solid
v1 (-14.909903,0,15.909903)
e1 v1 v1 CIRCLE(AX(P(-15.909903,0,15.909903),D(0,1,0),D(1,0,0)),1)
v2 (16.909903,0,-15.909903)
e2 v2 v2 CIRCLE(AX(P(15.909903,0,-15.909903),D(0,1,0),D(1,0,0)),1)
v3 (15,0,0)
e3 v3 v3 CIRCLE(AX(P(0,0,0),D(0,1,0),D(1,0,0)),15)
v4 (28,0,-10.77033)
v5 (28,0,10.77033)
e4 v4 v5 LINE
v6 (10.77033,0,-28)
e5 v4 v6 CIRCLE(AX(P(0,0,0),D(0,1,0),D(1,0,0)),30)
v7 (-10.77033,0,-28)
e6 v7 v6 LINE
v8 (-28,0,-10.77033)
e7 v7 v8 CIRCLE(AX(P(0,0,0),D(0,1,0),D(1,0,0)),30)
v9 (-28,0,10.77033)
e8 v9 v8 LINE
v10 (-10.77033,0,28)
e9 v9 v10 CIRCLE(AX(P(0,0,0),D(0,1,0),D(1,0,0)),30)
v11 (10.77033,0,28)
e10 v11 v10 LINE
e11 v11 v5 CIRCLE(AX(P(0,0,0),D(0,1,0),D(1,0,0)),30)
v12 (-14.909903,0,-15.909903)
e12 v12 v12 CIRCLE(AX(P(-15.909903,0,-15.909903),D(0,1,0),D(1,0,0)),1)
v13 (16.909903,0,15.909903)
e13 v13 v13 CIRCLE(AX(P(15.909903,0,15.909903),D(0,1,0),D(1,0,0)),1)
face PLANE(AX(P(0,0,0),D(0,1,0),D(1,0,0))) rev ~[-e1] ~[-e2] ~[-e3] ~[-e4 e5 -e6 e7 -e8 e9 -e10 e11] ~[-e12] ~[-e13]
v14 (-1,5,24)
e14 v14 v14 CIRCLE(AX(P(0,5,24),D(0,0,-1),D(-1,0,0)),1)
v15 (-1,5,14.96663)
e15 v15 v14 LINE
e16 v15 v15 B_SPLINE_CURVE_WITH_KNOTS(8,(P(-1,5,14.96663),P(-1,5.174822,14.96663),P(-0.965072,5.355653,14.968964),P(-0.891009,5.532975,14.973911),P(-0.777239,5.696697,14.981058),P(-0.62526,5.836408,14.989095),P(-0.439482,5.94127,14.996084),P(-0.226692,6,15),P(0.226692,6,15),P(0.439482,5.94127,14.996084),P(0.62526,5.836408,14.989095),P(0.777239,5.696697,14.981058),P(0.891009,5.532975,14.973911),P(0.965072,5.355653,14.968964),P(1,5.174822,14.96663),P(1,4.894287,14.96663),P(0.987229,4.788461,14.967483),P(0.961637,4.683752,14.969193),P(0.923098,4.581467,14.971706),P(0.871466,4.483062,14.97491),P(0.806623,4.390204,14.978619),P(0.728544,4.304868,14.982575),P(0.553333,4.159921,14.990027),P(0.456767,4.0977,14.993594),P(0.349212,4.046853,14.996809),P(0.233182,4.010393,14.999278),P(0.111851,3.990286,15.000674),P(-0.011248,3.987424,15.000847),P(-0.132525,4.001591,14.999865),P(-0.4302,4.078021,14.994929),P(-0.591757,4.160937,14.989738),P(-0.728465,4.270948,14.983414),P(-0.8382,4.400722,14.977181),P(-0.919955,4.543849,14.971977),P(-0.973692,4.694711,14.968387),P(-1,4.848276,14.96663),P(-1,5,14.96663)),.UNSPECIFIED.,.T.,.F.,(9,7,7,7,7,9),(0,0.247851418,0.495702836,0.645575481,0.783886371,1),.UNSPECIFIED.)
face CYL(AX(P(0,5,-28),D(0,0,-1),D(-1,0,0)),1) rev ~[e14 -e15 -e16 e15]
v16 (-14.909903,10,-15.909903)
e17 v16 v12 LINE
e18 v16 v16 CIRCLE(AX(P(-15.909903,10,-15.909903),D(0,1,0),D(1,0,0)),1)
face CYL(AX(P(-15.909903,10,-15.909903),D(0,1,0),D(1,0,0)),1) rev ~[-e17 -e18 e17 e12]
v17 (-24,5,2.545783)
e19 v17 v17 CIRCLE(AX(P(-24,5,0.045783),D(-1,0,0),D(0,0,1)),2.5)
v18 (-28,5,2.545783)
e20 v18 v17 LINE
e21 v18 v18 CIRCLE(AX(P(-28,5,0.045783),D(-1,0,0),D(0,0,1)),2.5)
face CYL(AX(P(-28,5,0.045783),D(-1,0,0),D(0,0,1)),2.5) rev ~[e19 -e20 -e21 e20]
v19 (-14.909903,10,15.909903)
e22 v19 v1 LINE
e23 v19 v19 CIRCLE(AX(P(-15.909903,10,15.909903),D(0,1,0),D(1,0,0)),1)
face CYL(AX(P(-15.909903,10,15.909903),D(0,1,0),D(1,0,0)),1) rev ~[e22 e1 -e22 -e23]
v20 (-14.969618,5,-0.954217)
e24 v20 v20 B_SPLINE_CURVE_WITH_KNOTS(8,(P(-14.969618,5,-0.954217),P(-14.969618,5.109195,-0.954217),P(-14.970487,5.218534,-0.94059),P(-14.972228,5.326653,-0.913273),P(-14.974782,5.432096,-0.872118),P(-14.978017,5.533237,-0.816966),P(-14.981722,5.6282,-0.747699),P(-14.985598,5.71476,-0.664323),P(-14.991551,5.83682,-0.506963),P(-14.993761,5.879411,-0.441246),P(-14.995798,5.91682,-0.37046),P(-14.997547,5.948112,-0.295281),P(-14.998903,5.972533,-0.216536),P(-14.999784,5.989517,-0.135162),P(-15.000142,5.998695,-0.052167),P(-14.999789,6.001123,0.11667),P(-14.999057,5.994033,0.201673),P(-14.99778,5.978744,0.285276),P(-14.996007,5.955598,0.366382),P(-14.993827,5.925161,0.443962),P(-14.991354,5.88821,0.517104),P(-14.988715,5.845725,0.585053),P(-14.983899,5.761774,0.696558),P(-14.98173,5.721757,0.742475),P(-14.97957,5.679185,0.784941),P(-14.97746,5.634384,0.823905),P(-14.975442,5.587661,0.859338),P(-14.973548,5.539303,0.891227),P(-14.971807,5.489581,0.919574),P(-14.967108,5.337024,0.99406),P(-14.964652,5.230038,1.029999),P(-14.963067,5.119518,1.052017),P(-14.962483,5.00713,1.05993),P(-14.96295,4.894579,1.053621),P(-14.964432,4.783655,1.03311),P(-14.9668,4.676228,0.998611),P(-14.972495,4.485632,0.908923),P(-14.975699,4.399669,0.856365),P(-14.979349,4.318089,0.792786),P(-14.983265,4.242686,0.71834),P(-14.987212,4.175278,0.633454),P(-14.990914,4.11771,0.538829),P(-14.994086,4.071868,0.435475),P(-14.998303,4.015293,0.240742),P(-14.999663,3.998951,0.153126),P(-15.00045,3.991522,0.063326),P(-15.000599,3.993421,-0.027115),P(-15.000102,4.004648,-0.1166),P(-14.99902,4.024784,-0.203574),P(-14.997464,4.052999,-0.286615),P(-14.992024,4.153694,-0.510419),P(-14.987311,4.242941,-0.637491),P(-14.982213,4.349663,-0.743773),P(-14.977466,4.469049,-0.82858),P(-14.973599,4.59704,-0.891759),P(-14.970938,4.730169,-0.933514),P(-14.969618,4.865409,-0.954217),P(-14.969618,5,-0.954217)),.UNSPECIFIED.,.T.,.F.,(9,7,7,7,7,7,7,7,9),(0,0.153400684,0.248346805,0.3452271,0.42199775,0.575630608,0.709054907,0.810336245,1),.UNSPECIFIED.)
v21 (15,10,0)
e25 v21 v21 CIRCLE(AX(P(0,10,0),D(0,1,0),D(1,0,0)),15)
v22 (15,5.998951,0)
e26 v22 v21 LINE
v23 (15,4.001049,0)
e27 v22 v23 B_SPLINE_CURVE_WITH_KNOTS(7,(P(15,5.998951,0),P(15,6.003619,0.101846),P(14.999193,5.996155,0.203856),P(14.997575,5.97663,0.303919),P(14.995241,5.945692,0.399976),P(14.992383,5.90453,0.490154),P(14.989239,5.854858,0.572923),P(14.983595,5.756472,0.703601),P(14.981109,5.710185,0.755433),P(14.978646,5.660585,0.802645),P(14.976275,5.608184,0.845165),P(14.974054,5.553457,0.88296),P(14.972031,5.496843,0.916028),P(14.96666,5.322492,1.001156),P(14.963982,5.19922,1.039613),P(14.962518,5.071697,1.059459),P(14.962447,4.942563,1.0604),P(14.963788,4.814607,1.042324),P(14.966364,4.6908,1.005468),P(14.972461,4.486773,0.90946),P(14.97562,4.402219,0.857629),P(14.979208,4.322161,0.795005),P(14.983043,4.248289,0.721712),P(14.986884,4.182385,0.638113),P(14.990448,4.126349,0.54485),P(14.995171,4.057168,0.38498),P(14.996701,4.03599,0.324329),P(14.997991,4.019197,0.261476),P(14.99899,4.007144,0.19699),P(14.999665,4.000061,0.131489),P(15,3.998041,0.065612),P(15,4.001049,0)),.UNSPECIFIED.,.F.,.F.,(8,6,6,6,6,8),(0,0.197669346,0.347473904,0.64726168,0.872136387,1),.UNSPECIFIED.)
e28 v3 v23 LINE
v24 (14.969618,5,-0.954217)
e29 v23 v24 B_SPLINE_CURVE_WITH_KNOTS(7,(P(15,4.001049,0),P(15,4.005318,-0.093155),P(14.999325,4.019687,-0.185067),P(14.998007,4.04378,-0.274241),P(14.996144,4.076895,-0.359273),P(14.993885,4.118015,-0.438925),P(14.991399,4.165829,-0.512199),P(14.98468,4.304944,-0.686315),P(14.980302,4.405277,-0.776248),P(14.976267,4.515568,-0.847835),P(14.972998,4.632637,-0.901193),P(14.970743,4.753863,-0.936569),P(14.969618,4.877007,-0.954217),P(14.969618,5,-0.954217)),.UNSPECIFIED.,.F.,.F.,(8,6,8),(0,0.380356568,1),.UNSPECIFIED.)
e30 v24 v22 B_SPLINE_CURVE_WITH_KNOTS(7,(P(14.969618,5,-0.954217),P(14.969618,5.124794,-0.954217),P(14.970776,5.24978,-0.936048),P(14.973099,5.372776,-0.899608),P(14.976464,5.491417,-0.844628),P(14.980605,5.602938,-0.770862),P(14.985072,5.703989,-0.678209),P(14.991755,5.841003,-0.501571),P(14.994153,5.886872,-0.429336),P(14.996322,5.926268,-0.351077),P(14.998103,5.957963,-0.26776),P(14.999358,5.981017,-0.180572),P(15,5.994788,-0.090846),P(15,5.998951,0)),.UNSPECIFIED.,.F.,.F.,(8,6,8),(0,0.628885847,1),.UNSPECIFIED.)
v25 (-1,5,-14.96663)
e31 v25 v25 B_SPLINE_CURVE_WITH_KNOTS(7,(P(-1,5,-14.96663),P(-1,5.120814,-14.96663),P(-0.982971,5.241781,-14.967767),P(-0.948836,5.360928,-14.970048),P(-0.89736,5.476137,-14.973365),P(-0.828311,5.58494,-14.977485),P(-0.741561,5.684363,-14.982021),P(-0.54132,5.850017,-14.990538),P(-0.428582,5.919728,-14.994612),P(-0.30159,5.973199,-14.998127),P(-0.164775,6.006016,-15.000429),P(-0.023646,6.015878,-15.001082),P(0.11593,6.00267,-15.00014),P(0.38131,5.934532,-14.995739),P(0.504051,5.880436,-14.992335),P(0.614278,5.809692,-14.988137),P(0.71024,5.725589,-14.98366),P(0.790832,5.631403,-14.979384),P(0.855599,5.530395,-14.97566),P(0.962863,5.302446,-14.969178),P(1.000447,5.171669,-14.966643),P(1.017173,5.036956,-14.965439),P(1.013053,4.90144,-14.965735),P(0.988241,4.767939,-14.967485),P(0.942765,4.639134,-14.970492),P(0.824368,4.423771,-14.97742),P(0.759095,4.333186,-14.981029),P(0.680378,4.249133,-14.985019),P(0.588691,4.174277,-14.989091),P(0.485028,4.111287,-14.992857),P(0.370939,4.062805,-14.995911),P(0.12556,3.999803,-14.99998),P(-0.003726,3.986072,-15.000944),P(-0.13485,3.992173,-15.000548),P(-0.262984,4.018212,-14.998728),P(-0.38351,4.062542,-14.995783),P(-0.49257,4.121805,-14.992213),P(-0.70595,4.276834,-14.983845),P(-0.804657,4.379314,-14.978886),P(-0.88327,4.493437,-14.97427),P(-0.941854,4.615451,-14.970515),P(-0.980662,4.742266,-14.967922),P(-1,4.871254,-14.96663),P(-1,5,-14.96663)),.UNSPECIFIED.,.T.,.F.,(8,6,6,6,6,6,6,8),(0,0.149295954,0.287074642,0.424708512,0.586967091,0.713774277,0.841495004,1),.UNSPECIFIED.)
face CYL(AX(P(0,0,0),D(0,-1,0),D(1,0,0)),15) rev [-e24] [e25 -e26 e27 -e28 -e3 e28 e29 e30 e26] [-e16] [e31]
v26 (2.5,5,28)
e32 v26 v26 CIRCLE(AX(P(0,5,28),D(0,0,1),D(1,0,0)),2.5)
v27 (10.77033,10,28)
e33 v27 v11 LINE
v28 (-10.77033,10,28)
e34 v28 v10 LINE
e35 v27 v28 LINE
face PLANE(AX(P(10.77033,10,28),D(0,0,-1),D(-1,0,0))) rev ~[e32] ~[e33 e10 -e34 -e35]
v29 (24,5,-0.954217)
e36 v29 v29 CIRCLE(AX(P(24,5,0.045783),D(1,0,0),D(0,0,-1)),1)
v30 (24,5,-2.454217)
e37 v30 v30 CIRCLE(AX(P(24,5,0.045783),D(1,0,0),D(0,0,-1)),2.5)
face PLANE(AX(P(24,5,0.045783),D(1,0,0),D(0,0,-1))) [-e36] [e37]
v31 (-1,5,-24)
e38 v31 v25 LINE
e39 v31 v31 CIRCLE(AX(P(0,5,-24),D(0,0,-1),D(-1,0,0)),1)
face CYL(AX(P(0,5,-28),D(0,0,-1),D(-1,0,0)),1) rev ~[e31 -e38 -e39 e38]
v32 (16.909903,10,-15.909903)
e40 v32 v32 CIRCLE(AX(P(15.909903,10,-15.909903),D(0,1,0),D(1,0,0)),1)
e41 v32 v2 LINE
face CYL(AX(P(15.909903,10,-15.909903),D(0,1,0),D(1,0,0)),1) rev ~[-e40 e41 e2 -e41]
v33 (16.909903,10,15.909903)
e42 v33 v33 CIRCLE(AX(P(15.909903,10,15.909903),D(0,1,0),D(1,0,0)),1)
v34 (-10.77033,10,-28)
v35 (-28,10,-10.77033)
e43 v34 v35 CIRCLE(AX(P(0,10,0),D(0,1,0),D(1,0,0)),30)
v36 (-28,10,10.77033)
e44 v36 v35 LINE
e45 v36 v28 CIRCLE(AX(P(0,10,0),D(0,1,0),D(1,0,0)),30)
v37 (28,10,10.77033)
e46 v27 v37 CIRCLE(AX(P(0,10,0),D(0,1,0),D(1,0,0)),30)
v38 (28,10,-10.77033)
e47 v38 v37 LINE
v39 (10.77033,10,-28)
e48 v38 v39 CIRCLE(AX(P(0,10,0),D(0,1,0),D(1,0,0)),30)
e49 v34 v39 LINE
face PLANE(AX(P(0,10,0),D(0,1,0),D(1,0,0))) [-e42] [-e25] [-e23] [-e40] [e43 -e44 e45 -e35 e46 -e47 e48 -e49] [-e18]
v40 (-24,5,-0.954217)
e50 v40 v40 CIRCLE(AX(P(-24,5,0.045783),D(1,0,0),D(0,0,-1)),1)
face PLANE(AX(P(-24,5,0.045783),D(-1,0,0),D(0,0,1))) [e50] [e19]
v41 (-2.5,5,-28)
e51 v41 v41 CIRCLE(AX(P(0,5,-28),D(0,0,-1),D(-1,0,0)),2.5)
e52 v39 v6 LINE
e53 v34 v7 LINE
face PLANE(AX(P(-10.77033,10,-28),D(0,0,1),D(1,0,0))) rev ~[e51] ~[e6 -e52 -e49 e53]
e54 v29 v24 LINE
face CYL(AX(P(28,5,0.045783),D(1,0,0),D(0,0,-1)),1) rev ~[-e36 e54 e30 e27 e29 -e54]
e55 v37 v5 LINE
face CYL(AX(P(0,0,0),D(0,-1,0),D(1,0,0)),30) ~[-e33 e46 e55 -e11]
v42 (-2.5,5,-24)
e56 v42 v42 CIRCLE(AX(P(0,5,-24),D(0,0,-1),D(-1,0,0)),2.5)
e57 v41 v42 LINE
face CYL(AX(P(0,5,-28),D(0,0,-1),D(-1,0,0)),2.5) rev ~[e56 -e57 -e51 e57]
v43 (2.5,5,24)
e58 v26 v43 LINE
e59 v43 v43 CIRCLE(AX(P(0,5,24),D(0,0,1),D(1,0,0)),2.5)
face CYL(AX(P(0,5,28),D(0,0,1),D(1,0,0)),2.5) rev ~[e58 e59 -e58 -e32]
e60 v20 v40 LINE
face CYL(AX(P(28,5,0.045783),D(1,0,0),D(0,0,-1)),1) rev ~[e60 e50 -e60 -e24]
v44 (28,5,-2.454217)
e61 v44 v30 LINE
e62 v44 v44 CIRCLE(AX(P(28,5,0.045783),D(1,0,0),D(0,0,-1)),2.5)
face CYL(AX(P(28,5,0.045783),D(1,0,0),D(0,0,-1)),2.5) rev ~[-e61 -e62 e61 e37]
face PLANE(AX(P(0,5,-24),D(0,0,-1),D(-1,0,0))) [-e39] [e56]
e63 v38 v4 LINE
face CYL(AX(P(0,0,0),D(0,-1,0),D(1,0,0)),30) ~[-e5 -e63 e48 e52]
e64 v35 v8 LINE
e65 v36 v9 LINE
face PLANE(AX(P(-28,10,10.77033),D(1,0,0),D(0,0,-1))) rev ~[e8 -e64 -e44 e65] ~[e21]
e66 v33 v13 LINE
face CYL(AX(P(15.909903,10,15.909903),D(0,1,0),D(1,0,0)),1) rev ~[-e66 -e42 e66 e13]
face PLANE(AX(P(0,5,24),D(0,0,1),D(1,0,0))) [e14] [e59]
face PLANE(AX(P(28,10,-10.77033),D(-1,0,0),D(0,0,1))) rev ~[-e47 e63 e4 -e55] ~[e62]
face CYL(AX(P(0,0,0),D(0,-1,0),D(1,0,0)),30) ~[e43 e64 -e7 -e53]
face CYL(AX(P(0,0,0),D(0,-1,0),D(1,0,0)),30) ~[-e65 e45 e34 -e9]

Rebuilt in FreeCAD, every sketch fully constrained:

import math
import FreeCAD as App
import Part
import Sketcher

V = App.Vector
Q = App.Units.Quantity

doc = App.newDocument("Part")
params = doc.addObject("Spreadsheet::Sheet", "Params")
for row, (alias, value) in enumerate([
    ("sketch1_diameter", "60 mm"),
    ("sketch1_diameter2", "30 mm"),
    ("pad1_length", "10 mm"),
    ("sketch2_radius", "30 mm"),
    ("pocket1_length", "43 mm"),
    ("sketch3_diameter", "2 mm"),
    ("pocket2_length", "43 mm"),
    ("sketch4_diameter", "2 mm"),
    ("pocket3_length", "70 mm"),
    ("sketch5_diameter", "2 mm"),
    ("pocket4_length", "70 mm"),
    ("sketch6_diameter", "5 mm"),
    ("pocket5_length", "4 mm"),
    ("sketch7_diameter", "5 mm"),
    ("sketch7_diameter2", "2 mm"),
    ("pocket6_length", "4 mm"),
    ("sketch8_diameter", "5 mm"),
    ("pocket7_length", "4 mm"),
    ("sketch9_diameter", "5 mm"),
    ("pocket8_length", "4 mm"),
], start=1):
    params.set(f"A{row}", alias)
    params.set(f"B{row}", "=" + value)
    params.setAlias(f"B{row}", alias)

body = doc.addObject("PartDesign::Body", "Body")

# Sketch on XZ plane
sketch1 = doc.addObject("Sketcher::SketchObject", "Sketch")
body.addObject(sketch1)
sketch1.AttachmentSupport = (doc.XZ_Plane, [""])
sketch1.MapMode = "FlatFace"
sketch1.addGeometry([
    Part.Circle(V(0, 0, 0), V(0, 0, 1), 30),
    Part.Circle(V(0, 0, 0), V(0, 0, 1), 15),
], False)
sketch1.addConstraint([
    Sketcher.Constraint("Coincident", 0, 3, -1, 1),
    Sketcher.Constraint("Coincident", 1, 3, -1, 1),
    Sketcher.Constraint("Diameter", 0, Q("60 mm")),
    Sketcher.Constraint("Diameter", 1, Q("30 mm")),
])
sketch1.setExpression("Constraints[2]", "Params.sketch1_diameter")
sketch1.setExpression("Constraints[3]", "Params.sketch1_diameter2")
pad1 = doc.addObject("PartDesign::Pad", "Pad")
body.addObject(pad1)
pad1.Profile = sketch1
pad1.setExpression("Length", "Params.pad1_length")
pad1.Reversed = True

# Sketch on XZ plane
sketch2 = doc.addObject("Sketcher::SketchObject", "Sketch001")
body.addObject(sketch2)
sketch2.AttachmentSupport = (doc.XZ_Plane, [""])
sketch2.MapMode = "FlatFace"
sketch2.AttachmentOffset = App.Placement(V(0, 0, -10), App.Rotation())
sketch2.addGeometry([
    Part.ArcOfCircle(Part.Circle(V(0, 0, 0), V(0, 0, 1), 30), math.radians(-111.03947), math.radians(-68.96053)),  # 0
    Part.LineSegment(V(-10.77033, -28, 0), V(10.77033, -28, 0)),  # 1
    Part.LineSegment(V(-28, 10.77033, 0), V(-28, -10.77033, 0)),  # 2
    Part.ArcOfCircle(Part.Circle(V(0, 0, 0), V(0, 0, 1), 30), math.radians(158.96053), math.radians(201.03947)),  # 3
    Part.ArcOfCircle(Part.Circle(V(0, 0, 0), V(0, 0, 1), 30), math.radians(-21.03947), math.radians(0)),  # 4
    Part.LineSegment(V(28, -10.77033, 0), V(28, 10.77033, 0)),  # 5
    Part.ArcOfCircle(Part.Circle(V(0, 0, 0), V(0, 0, 1), 30), math.radians(0), math.radians(21.03947)),  # 6
    Part.LineSegment(V(10.77033, 28, 0), V(-10.77033, 28, 0)),  # 7
    Part.ArcOfCircle(Part.Circle(V(0, 0, 0), V(0, 0, 1), 30), math.radians(68.96053), math.radians(111.03947)),  # 8
], False)
sketch2.addConstraint([
    Sketcher.Constraint("Coincident", 0, 1, 1, 1),
    Sketcher.Constraint("Coincident", 1, 2, 0, 2),
    Sketcher.Constraint("Coincident", 2, 1, 3, 1),
    Sketcher.Constraint("Coincident", 3, 2, 2, 2),
    Sketcher.Constraint("Coincident", 4, 1, 5, 1),
    Sketcher.Constraint("Coincident", 5, 2, 6, 2),
    Sketcher.Constraint("Tangent", 6, 1, 4, 2),
    Sketcher.Constraint("Coincident", 7, 1, 8, 1),
    Sketcher.Constraint("Coincident", 8, 2, 7, 2),
    Sketcher.Constraint("Horizontal", 1),
    Sketcher.Constraint("Vertical", 2),
    Sketcher.Constraint("Vertical", 5),
    Sketcher.Constraint("Horizontal", 7),
    Sketcher.Constraint("Coincident", 0, 3, -1, 1),
    Sketcher.Constraint("Coincident", 3, 3, -1, 1),
    Sketcher.Constraint("Coincident", 4, 3, -1, 1),
    Sketcher.Constraint("Coincident", 8, 3, -1, 1),
    Sketcher.Constraint("Equal", 0, 3),
    Sketcher.Constraint("Equal", 3, 4),
    Sketcher.Constraint("Equal", 4, 6),
    Sketcher.Constraint("Equal", 6, 8),
    Sketcher.Constraint("PointOnObject", 6, 1, -1),
    Sketcher.Constraint("Horizontal", 3, 2, 4, 1),
    Sketcher.Constraint("Vertical", 1, 2, 7, 1),
    Sketcher.Constraint("Equal", 7, 2),
    Sketcher.Constraint("Radius", 0, Q("30 mm")),
    Sketcher.Constraint("DistanceY", 0, 1, -1, 1, Q("28 mm")),
])
sketch2.setExpression("Constraints[25]", "Params.sketch2_radius")
pocket1 = doc.addObject("PartDesign::Pocket", "Pocket")
body.addObject(pocket1)
pocket1.Profile = sketch2
pocket1.setExpression("Length", "Params.pocket1_length")
pocket1.Reversed = True

# Sketch on XZ plane
sketch3 = doc.addObject("Sketcher::SketchObject", "Sketch002")
body.addObject(sketch3)
sketch3.AttachmentSupport = (doc.XZ_Plane, [""])
sketch3.MapMode = "FlatFace"
sketch3.AttachmentOffset = App.Placement(V(0, 0, -10), App.Rotation())
sketch3.addGeometry([
    Part.Circle(V(15.909903, 15.909903, 0), V(0, 0, 1), 1),
    Part.Circle(V(-15.909903, 15.909903, 0), V(0, 0, 1), 1),
    Part.Circle(V(-15.909903, -15.909903, 0), V(0, 0, 1), 1),
    Part.Circle(V(15.909903, -15.909903, 0), V(0, 0, 1), 1),
], False)
sketch3.addConstraint([
    Sketcher.Constraint("Equal", 0, 1),
    Sketcher.Constraint("Equal", 1, 2),
    Sketcher.Constraint("Equal", 2, 3),
    Sketcher.Constraint("Symmetric", 0, 3, 2, 3, -1, 1),
    Sketcher.Constraint("Symmetric", 1, 3, 3, 3, -1, 1),
    Sketcher.Constraint("Symmetric", 0, 3, 1, 3, -2),
    Sketcher.Constraint("Diameter", 0, Q("2 mm")),
    Sketcher.Constraint("DistanceX", -1, 1, 0, 3, Q("15.909903 mm")),
    Sketcher.Constraint("DistanceY", -1, 1, 0, 3, Q("15.909903 mm")),
])
sketch3.setExpression("Constraints[6]", "Params.sketch3_diameter")
pocket2 = doc.addObject("PartDesign::Pocket", "Pocket001")
body.addObject(pocket2)
pocket2.Profile = sketch3
pocket2.setExpression("Length", "Params.pocket2_length")
pocket2.Reversed = True

# Sketch on XY plane
sketch4 = doc.addObject("Sketcher::SketchObject", "Sketch003")
body.addObject(sketch4)
sketch4.AttachmentSupport = (doc.XY_Plane, [""])
sketch4.MapMode = "FlatFace"
sketch4.AttachmentOffset = App.Placement(V(0, 0, -28), App.Rotation())
sketch4.addGeometry(Part.Circle(V(0, 5, 0), V(0, 0, 1), 1), False)
sketch4.addConstraint([
    Sketcher.Constraint("PointOnObject", 0, 3, -2),
    Sketcher.Constraint("Diameter", 0, Q("2 mm")),
    Sketcher.Constraint("DistanceY", -1, 1, 0, 3, Q("5 mm")),
])
sketch4.setExpression("Constraints[1]", "Params.sketch4_diameter")
pocket3 = doc.addObject("PartDesign::Pocket", "Pocket002")
body.addObject(pocket3)
pocket3.Profile = sketch4
pocket3.setExpression("Length", "Params.pocket3_length")
pocket3.Reversed = True

# Sketch on YZ plane
sketch5 = doc.addObject("Sketcher::SketchObject", "Sketch004")
body.addObject(sketch5)
sketch5.AttachmentSupport = (doc.YZ_Plane, [""])
sketch5.MapMode = "FlatFace"
sketch5.AttachmentOffset = App.Placement(V(0, 0, 28), App.Rotation())
sketch5.addGeometry(Part.Circle(V(5, 0.045783, 0), V(0, 0, 1), 1), False)
sketch5.addConstraint([
    Sketcher.Constraint("Diameter", 0, Q("2 mm")),
    Sketcher.Constraint("DistanceX", -1, 1, 0, 3, Q("5 mm")),
    Sketcher.Constraint("DistanceY", -1, 1, 0, 3, Q("0.045783 mm")),
])
sketch5.setExpression("Constraints[0]", "Params.sketch5_diameter")
pocket4 = doc.addObject("PartDesign::Pocket", "Pocket003")
body.addObject(pocket4)
pocket4.Profile = sketch5
pocket4.setExpression("Length", "Params.pocket4_length")

# Sketch on XY plane
sketch6 = doc.addObject("Sketcher::SketchObject", "Sketch005")
body.addObject(sketch6)
sketch6.AttachmentSupport = (doc.XY_Plane, [""])
sketch6.MapMode = "FlatFace"
sketch6.AttachmentOffset = App.Placement(V(0, 0, -28), App.Rotation())
sketch6.addGeometry(Part.Circle(V(0, 5, 0), V(0, 0, 1), 2.5), False)
sketch6.addConstraint([
    Sketcher.Constraint("PointOnObject", 0, 3, -2),
    Sketcher.Constraint("Diameter", 0, Q("5 mm")),
    Sketcher.Constraint("DistanceY", -1, 1, 0, 3, Q("5 mm")),
])
sketch6.setExpression("Constraints[1]", "Params.sketch6_diameter")
pocket5 = doc.addObject("PartDesign::Pocket", "Pocket004")
body.addObject(pocket5)
pocket5.Profile = sketch6
pocket5.setExpression("Length", "Params.pocket5_length")
pocket5.Reversed = True

# Sketch on YZ plane
sketch7 = doc.addObject("Sketcher::SketchObject", "Sketch006")
body.addObject(sketch7)
sketch7.AttachmentSupport = (doc.YZ_Plane, [""])
sketch7.MapMode = "FlatFace"
sketch7.AttachmentOffset = App.Placement(V(0, 0, 28), App.Rotation())
sketch7.addGeometry([
    Part.Circle(V(5, 0.045783, 0), V(0, 0, 1), 2.5),
    Part.Circle(V(5, 0.045783, 0), V(0, 0, 1), 1),
], False)
sketch7.addConstraint([
    Sketcher.Constraint("Coincident", 1, 3, 0, 3),
    Sketcher.Constraint("Diameter", 0, Q("5 mm")),
    Sketcher.Constraint("Diameter", 1, Q("2 mm")),
    Sketcher.Constraint("DistanceX", -1, 1, 0, 3, Q("5 mm")),
    Sketcher.Constraint("DistanceY", -1, 1, 0, 3, Q("0.045783 mm")),
])
sketch7.setExpression("Constraints[1]", "Params.sketch7_diameter")
sketch7.setExpression("Constraints[2]", "Params.sketch7_diameter2")
pocket6 = doc.addObject("PartDesign::Pocket", "Pocket005")
body.addObject(pocket6)
pocket6.Profile = sketch7
pocket6.setExpression("Length", "Params.pocket6_length")

# Sketch on XY plane
sketch8 = doc.addObject("Sketcher::SketchObject", "Sketch007")
body.addObject(sketch8)
sketch8.AttachmentSupport = (doc.XY_Plane, [""])
sketch8.MapMode = "FlatFace"
sketch8.AttachmentOffset = App.Placement(V(0, 0, 28), App.Rotation())
sketch8.addGeometry(Part.Circle(V(0, 5, 0), V(0, 0, 1), 2.5), False)
sketch8.addConstraint([
    Sketcher.Constraint("PointOnObject", 0, 3, -2),
    Sketcher.Constraint("Diameter", 0, Q("5 mm")),
    Sketcher.Constraint("DistanceY", -1, 1, 0, 3, Q("5 mm")),
])
sketch8.setExpression("Constraints[1]", "Params.sketch8_diameter")
pocket7 = doc.addObject("PartDesign::Pocket", "Pocket006")
body.addObject(pocket7)
pocket7.Profile = sketch8
pocket7.setExpression("Length", "Params.pocket7_length")

# Sketch on YZ plane
sketch9 = doc.addObject("Sketcher::SketchObject", "Sketch008")
body.addObject(sketch9)
sketch9.AttachmentSupport = (doc.YZ_Plane, [""])
sketch9.MapMode = "FlatFace"
sketch9.AttachmentOffset = App.Placement(V(0, 0, -28), App.Rotation())
sketch9.addGeometry(Part.Circle(V(5, 0.045783, 0), V(0, 0, 1), 2.5), False)
sketch9.addConstraint([
    Sketcher.Constraint("Diameter", 0, Q("5 mm")),
    Sketcher.Constraint("DistanceX", -1, 1, 0, 3, Q("5 mm")),
    Sketcher.Constraint("DistanceY", -1, 1, 0, 3, Q("0.045783 mm")),
])
sketch9.setExpression("Constraints[0]", "Params.sketch9_diameter")
pocket8 = doc.addObject("PartDesign::Pocket", "Pocket007")
body.addObject(pocket8)
pocket8.Profile = sketch9
pocket8.setExpression("Length", "Params.pocket8_length")
pocket8.Reversed = True

doc.recompute()
